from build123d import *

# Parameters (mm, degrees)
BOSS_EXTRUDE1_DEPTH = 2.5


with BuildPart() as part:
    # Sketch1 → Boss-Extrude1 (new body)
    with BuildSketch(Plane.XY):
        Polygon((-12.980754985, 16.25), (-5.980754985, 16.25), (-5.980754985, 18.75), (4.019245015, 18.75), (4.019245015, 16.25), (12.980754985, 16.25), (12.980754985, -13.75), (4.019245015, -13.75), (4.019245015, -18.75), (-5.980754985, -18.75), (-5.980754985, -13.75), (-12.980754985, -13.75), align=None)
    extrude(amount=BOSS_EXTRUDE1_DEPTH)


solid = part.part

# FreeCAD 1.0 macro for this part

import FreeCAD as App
import Part
import Sketcher
from FreeCAD import Vector


def add_polygon(sketch, points):
    """Adds a closed chain of lines whose ends are joined by coincident constraints."""
    first, n = sketch.GeometryCount, len(points)
    for a, b in zip(points, points[1:] + points[:1]):
        sketch.addGeometry(Part.LineSegment(App.Vector(*a, 0), App.Vector(*b, 0)), False)
    for i in range(n):
        sketch.addConstraint(Sketcher.Constraint("Coincident", first + i, 2, first + (i + 1) % n, 1))

doc = App.newDocument("Part")
body = doc.addObject("PartDesign::Body", "Body")

sketch1 = body.newObject("Sketcher::SketchObject", "Sketch")
sketch1.AttachmentSupport = (doc.getObject("XY_Plane"), [""])
sketch1.MapMode = "FlatFace"
add_polygon(sketch1, [(-5.980755, 16.25), (-12.980755, 16.25), (-12.980755, -13.75), (-5.980755, -13.75), (-5.980755, -18.75), (4.019245, -18.75), (4.019245, -13.75), (12.980755, -13.75), (12.980755, 16.25), (4.019245, 16.25), (4.019245, 18.75), (-5.980755, 18.75)])
sketch1.addConstraint([
    Sketcher.Constraint("Horizontal", 0),
    Sketcher.Constraint("Vertical", 1),
    Sketcher.Constraint("Horizontal", 2),
    Sketcher.Constraint("Vertical", 3),
    Sketcher.Constraint("Horizontal", 4),
    Sketcher.Constraint("Vertical", 5),
    Sketcher.Constraint("Horizontal", 6),
    Sketcher.Constraint("Vertical", 7),
    Sketcher.Constraint("Horizontal", 8),
    Sketcher.Constraint("Vertical", 9),
    Sketcher.Constraint("Horizontal", 10),
    Sketcher.Constraint("Vertical", 11),
    Sketcher.Constraint("Symmetric", 1, 2, 6, 2, -2),
    Sketcher.Constraint("Symmetric", 4, 2, 9, 2, -1),
    Sketcher.Constraint("Horizontal", 0, 2, 7, 2),
    Sketcher.Constraint("Vertical", 3, 2, 10, 2),
    Sketcher.Constraint("DistanceX", 0, 2, 0, 1, 7.0),
    Sketcher.Constraint("DistanceX", 4, 1, 4, 2, 10.0),
    Sketcher.Constraint("DistanceY", 1, 2, 1, 1, 30.0),
    Sketcher.Constraint("DistanceY", 3, 2, 3, 1, 5.0),
    Sketcher.Constraint("DistanceY", 9, 1, 9, 2, 2.5),
    Sketcher.Constraint("DistanceX", 6, 1, 6, 2, 8.96151),
])
pad1 = body.newObject("PartDesign::Pad", "Pad")
pad1.Profile = sketch1
pad1.Length = 2.5

doc.recompute()
